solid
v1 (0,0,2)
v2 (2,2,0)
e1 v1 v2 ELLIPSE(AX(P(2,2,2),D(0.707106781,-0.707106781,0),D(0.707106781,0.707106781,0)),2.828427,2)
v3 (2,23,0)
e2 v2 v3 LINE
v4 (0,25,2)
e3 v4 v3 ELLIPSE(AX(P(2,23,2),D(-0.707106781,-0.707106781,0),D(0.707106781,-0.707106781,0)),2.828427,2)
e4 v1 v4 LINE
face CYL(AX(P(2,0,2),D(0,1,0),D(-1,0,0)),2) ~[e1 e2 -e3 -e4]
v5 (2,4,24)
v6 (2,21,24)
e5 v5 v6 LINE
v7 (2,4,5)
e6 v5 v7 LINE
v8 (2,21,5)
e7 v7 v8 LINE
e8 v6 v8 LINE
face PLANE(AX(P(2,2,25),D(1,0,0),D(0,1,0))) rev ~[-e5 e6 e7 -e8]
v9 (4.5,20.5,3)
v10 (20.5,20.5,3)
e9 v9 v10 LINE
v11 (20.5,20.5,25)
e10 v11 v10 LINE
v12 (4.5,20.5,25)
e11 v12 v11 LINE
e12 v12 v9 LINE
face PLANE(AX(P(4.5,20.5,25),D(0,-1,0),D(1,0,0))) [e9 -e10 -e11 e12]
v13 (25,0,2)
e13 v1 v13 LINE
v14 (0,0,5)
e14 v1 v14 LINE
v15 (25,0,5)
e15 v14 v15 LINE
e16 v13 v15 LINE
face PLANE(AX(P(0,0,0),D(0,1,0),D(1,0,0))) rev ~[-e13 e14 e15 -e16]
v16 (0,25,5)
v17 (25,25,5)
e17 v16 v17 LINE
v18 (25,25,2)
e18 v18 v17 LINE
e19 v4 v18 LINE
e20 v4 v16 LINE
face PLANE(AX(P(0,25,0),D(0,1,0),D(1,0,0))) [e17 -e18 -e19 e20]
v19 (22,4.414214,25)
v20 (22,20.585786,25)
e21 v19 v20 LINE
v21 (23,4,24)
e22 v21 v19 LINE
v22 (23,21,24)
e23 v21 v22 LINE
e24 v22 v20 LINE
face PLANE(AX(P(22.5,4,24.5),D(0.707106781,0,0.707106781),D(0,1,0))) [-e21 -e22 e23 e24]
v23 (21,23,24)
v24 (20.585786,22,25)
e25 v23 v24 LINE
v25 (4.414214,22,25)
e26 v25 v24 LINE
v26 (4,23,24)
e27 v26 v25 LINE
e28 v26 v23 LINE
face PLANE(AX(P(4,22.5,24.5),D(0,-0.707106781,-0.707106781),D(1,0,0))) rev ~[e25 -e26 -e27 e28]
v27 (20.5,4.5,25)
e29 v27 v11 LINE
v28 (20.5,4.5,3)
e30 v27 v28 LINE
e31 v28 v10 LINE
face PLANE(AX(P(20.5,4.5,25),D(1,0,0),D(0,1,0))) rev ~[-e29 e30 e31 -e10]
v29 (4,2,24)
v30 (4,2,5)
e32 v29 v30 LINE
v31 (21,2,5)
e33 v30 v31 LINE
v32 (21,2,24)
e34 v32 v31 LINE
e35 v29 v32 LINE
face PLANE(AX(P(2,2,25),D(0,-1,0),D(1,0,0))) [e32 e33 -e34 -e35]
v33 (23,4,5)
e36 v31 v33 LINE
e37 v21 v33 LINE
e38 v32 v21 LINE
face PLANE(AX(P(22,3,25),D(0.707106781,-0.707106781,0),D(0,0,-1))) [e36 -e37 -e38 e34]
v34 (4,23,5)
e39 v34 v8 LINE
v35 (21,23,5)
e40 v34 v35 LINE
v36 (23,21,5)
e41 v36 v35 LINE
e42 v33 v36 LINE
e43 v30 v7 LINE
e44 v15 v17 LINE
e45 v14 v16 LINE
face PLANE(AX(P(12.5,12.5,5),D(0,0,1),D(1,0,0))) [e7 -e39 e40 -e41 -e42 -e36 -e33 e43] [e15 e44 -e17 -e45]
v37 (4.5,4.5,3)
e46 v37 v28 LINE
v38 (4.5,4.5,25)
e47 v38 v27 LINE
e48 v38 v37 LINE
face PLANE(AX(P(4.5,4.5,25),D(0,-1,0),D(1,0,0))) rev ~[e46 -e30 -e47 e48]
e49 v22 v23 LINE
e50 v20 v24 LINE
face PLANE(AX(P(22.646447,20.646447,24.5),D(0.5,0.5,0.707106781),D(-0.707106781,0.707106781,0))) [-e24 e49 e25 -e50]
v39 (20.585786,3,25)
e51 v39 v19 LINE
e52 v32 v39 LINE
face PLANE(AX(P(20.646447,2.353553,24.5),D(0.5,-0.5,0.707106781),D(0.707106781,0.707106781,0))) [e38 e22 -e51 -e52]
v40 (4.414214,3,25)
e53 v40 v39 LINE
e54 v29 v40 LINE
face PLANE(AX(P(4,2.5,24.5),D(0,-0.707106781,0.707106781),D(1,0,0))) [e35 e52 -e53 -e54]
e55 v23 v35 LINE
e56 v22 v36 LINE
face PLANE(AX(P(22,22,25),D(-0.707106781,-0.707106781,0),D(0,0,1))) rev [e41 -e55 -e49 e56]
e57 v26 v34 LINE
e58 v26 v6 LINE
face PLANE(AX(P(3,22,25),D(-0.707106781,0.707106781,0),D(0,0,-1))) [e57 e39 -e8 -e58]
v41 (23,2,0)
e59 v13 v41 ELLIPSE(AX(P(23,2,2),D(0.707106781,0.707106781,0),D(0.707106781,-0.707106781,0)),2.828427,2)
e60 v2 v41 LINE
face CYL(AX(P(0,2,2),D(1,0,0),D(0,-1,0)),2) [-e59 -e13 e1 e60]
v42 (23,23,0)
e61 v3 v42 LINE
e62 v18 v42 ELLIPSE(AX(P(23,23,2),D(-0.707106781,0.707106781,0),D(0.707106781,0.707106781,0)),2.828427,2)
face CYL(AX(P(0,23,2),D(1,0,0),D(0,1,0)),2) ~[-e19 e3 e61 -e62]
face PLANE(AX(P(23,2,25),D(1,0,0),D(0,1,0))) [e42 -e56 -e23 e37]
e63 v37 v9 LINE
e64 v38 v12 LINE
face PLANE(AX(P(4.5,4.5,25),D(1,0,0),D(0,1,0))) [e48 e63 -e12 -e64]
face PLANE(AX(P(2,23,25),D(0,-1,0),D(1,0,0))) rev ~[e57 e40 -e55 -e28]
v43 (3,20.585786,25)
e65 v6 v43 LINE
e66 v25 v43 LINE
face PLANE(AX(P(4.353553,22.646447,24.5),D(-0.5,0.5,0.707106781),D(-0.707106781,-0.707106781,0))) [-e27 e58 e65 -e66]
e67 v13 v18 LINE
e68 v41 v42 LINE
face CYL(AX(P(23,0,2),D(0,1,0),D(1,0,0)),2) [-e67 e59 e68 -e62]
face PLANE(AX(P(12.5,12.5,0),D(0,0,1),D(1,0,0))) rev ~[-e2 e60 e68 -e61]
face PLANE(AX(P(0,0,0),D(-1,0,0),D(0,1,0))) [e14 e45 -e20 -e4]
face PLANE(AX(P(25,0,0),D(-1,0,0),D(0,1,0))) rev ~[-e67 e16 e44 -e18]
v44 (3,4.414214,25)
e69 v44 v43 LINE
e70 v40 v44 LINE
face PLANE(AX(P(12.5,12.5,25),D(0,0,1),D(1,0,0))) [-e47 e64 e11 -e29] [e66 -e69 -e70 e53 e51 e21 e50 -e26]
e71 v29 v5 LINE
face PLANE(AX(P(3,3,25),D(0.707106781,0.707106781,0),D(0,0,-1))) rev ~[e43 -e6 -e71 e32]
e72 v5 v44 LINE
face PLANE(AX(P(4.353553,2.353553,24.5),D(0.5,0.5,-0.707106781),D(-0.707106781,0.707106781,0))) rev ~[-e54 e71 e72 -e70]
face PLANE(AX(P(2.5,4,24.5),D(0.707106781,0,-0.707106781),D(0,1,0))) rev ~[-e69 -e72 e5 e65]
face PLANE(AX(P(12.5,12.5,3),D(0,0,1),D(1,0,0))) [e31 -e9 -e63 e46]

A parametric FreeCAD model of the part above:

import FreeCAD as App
import Part
import Sketcher


def edges_at(feature, points):
    """Names of the edges that pass closest to the given points."""
    edges = feature.Shape.Edges
    near = lambda p: min(range(len(edges)), key=lambda i: edges[i].distToShape(Part.Vertex(*p))[0])
    return sorted({f"Edge{near(p) + 1}" for p in points})

doc = App.newDocument("Part")
body = doc.addObject("PartDesign::Body", "Body")

sketch1 = doc.addObject("Sketcher::SketchObject", "Sketch")
body.addObject(sketch1)
sketch1.AttachmentSupport = (doc.XY_Plane, [""])
sketch1.MapMode = "FlatFace"
sketch1.addGeometry(Part.LineSegment(App.Vector(0, 25, 0), App.Vector(0, 0, 0)), False)
sketch1.addGeometry(Part.LineSegment(App.Vector(0, 0, 0), App.Vector(25, 0, 0)), False)
sketch1.addGeometry(Part.LineSegment(App.Vector(25, 0, 0), App.Vector(25, 25, 0)), False)
sketch1.addGeometry(Part.LineSegment(App.Vector(25, 25, 0), App.Vector(0, 25, 0)), False)
sketch1.addConstraint(Sketcher.Constraint("Coincident", 0, 2, 1, 1))
sketch1.addConstraint(Sketcher.Constraint("Coincident", 1, 2, 2, 1))
sketch1.addConstraint(Sketcher.Constraint("Coincident", 2, 2, 3, 1))
sketch1.addConstraint(Sketcher.Constraint("Coincident", 3, 2, 0, 1))
sketch1.addConstraint(Sketcher.Constraint("Vertical", 0))
sketch1.addConstraint(Sketcher.Constraint("Horizontal", 1))
sketch1.addConstraint(Sketcher.Constraint("Vertical", 2))
sketch1.addConstraint(Sketcher.Constraint("Horizontal", 3))
sketch1.addConstraint(Sketcher.Constraint("Coincident", 0, 2, -1, 1))
sketch1.addConstraint(Sketcher.Constraint("Equal", 3, 0))
sketch1.addConstraint(Sketcher.Constraint("DistanceX", 1, 1, 1, 2, 25.0))
pad1 = doc.addObject("PartDesign::Pad", "Pad")
body.addObject(pad1)
pad1.Profile = sketch1
pad1.Length = 25

sketch2 = doc.addObject("Sketcher::SketchObject", "Sketch001")
body.addObject(sketch2)
sketch2.AttachmentSupport = (doc.XY_Plane, [""])
sketch2.MapMode = "FlatFace"
sketch2.AttachmentOffset = App.Placement(App.Vector(0, 0, 25), App.Rotation())
sketch2.addGeometry(Part.LineSegment(App.Vector(0, 25, 0), App.Vector(0, 0, 0)), False)
sketch2.addGeometry(Part.LineSegment(App.Vector(0, 0, 0), App.Vector(25, 0, 0)), False)
sketch2.addGeometry(Part.LineSegment(App.Vector(25, 0, 0), App.Vector(25, 25, 0)), False)
sketch2.addGeometry(Part.LineSegment(App.Vector(25, 25, 0), App.Vector(0, 25, 0)), False)
sketch2.addGeometry(Part.LineSegment(App.Vector(23, 2, 0), App.Vector(2, 2, 0)), False)
sketch2.addGeometry(Part.LineSegment(App.Vector(2, 2, 0), App.Vector(2, 23, 0)), False)
sketch2.addGeometry(Part.LineSegment(App.Vector(2, 23, 0), App.Vector(23, 23, 0)), False)
sketch2.addGeometry(Part.LineSegment(App.Vector(23, 23, 0), App.Vector(23, 2, 0)), False)
sketch2.addConstraint(Sketcher.Constraint("Coincident", 0, 2, 1, 1))
sketch2.addConstraint(Sketcher.Constraint("Coincident", 1, 2, 2, 1))
sketch2.addConstraint(Sketcher.Constraint("Coincident", 2, 2, 3, 1))
sketch2.addConstraint(Sketcher.Constraint("Coincident", 3, 2, 0, 1))
sketch2.addConstraint(Sketcher.Constraint("Coincident", 4, 2, 5, 1))
sketch2.addConstraint(Sketcher.Constraint("Coincident", 5, 2, 6, 1))
sketch2.addConstraint(Sketcher.Constraint("Coincident", 6, 2, 7, 1))
sketch2.addConstraint(Sketcher.Constraint("Coincident", 7, 2, 4, 1))
sketch2.addConstraint(Sketcher.Constraint("Vertical", 0))
sketch2.addConstraint(Sketcher.Constraint("Horizontal", 1))
sketch2.addConstraint(Sketcher.Constraint("Vertical", 2))
sketch2.addConstraint(Sketcher.Constraint("Horizontal", 3))
sketch2.addConstraint(Sketcher.Constraint("Horizontal", 4))
sketch2.addConstraint(Sketcher.Constraint("Vertical", 5))
sketch2.addConstraint(Sketcher.Constraint("Horizontal", 6))
sketch2.addConstraint(Sketcher.Constraint("Vertical", 7))
sketch2.addConstraint(Sketcher.Constraint("Coincident", 0, 2, -1, 1))
sketch2.addConstraint(Sketcher.Constraint("Equal", 3, 0))
sketch2.addConstraint(Sketcher.Constraint("Equal", 6, 5))
sketch2.addConstraint(Sketcher.Constraint("DistanceX", 1, 1, 1, 2, 25.0))
sketch2.addConstraint(Sketcher.Constraint("DistanceX", 4, 2, 4, 1, 21.0))
sketch2.addConstraint(Sketcher.Constraint("DistanceX", -1, 1, 4, 2, 2.0))
sketch2.addConstraint(Sketcher.Constraint("DistanceY", -1, 1, 4, 2, 2.0))
pocket1 = doc.addObject("PartDesign::Pocket", "Pocket")
body.addObject(pocket1)
pocket1.Profile = sketch2
pocket1.Length = 20

sketch3 = doc.addObject("Sketcher::SketchObject", "Sketch002")
body.addObject(sketch3)
sketch3.AttachmentSupport = (doc.XY_Plane, [""])
sketch3.MapMode = "FlatFace"
sketch3.AttachmentOffset = App.Placement(App.Vector(0, 0, 25), App.Rotation())
sketch3.addGeometry(Part.LineSegment(App.Vector(4, 20, 0), App.Vector(4, 4, 0)), False)
sketch3.addGeometry(Part.LineSegment(App.Vector(4, 4, 0), App.Vector(20, 4, 0)), False)
sketch3.addGeometry(Part.LineSegment(App.Vector(20, 4, 0), App.Vector(20, 20, 0)), False)
sketch3.addGeometry(Part.LineSegment(App.Vector(20, 20, 0), App.Vector(4, 20, 0)), False)
sketch3.addConstraint(Sketcher.Constraint("Coincident", 0, 2, 1, 1))
sketch3.addConstraint(Sketcher.Constraint("Coincident", 1, 2, 2, 1))
sketch3.addConstraint(Sketcher.Constraint("Coincident", 2, 2, 3, 1))
sketch3.addConstraint(Sketcher.Constraint("Coincident", 3, 2, 0, 1))
sketch3.addConstraint(Sketcher.Constraint("Vertical", 0))
sketch3.addConstraint(Sketcher.Constraint("Horizontal", 1))
sketch3.addConstraint(Sketcher.Constraint("Vertical", 2))
sketch3.addConstraint(Sketcher.Constraint("Horizontal", 3))
sketch3.addConstraint(Sketcher.Constraint("Equal", 3, 0))
sketch3.addConstraint(Sketcher.Constraint("DistanceX", 1, 1, 1, 2, 16.0))
sketch3.addConstraint(Sketcher.Constraint("DistanceX", -1, 1, 0, 2, 4.5))
sketch3.addConstraint(Sketcher.Constraint("DistanceY", -1, 1, 0, 2, 4.5))
pocket2 = doc.addObject("PartDesign::Pocket", "Pocket001")
body.addObject(pocket2)
pocket2.Profile = sketch3
pocket2.Length = 22
doc.recompute()

chamfer = doc.addObject("PartDesign::Chamfer", "Chamfer")
body.addObject(chamfer)
chamfer.Base = (pocket2, edges_at(pocket2, [
    (2, 2, 15),
    (23, 2, 15),
    (2, 23, 15),
    (23, 23, 15),
]))
chamfer.Size = 2
doc.recompute()

fillet = doc.addObject("PartDesign::Fillet", "Fillet")
body.addObject(fillet)
fillet.Base = (chamfer, edges_at(chamfer, [
    (12.5, 0, 0),
    (25, 12.5, 0),
    (12.5, 25, 0),
    (0, 12.5, 0),
]))
fillet.Radius = 2
doc.recompute()

chamfer2 = doc.addObject("PartDesign::Chamfer", "Chamfer001")
body.addObject(chamfer2)
chamfer2.Base = (fillet, edges_at(fillet, [
    (23, 12.5, 25),
    (22, 3, 25),
    (12.5, 2, 25),
    (3, 3, 25),
    (2, 12.5, 25),
    (3, 22, 25),
    (12.5, 23, 25),
    (22, 22, 25),
]))
chamfer2.Size = 1

doc.recompute()
